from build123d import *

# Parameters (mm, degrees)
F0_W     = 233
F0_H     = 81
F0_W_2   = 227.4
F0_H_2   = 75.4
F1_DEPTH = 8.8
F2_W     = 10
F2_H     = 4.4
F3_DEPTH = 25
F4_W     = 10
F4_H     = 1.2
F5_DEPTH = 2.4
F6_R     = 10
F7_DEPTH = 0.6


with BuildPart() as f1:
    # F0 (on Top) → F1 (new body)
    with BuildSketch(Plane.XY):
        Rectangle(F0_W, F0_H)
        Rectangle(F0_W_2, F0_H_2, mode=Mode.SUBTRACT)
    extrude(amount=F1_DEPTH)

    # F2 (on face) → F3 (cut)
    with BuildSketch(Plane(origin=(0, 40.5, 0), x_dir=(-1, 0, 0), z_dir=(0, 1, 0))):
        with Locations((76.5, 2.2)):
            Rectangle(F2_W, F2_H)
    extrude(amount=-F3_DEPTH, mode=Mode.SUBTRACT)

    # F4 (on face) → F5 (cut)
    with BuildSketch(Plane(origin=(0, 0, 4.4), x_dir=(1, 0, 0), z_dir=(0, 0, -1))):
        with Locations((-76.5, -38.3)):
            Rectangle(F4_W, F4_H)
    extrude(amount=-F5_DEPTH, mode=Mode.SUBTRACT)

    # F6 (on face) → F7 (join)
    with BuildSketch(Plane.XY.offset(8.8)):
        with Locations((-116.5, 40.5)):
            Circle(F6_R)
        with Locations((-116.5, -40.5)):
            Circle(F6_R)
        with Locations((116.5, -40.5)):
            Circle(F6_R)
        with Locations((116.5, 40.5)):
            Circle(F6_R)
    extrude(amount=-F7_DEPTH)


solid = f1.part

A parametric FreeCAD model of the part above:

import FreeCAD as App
import Part
import Sketcher

V = App.Vector


def add_polygon(sketch, points):
    """Adds a closed chain of lines whose ends are joined by coincident constraints."""
    first, n = sketch.GeometryCount, len(points)
    for a, b in zip(points, points[1:] + points[:1]):
        sketch.addGeometry(Part.LineSegment(App.Vector(*a, 0), App.Vector(*b, 0)), False)
    for i in range(n):
        sketch.addConstraint(Sketcher.Constraint("Coincident", first + i, 2, first + (i + 1) % n, 1))

doc = App.newDocument("Part")
body = doc.addObject("PartDesign::Body", "Body")

# Sketch on XY plane
sketch1 = doc.addObject("Sketcher::SketchObject", "Sketch")
body.addObject(sketch1)
sketch1.AttachmentSupport = (doc.XY_Plane, [""])
sketch1.MapMode = "FlatFace"
add_polygon(sketch1, [(-116.5, 40.5), (-116.5, -40.5), (116.5, -40.5), (116.5, 40.5)])  # lines 0-3
add_polygon(sketch1, [(113.7, -37.7), (-113.7, -37.7), (-113.7, 37.7), (113.7, 37.7)])  # lines 4-7
sketch1.addConstraint(Sketcher.Constraint("Vertical", 0))
sketch1.addConstraint(Sketcher.Constraint("Horizontal", 1))
sketch1.addConstraint(Sketcher.Constraint("Vertical", 2))
sketch1.addConstraint(Sketcher.Constraint("Horizontal", 3))
sketch1.addConstraint(Sketcher.Constraint("Horizontal", 4))
sketch1.addConstraint(Sketcher.Constraint("Vertical", 5))
sketch1.addConstraint(Sketcher.Constraint("Horizontal", 6))
sketch1.addConstraint(Sketcher.Constraint("Vertical", 7))
sketch1.addConstraint(Sketcher.Constraint("Symmetric", 0, 2, 2, 2, -1, 1))
sketch1.addConstraint(Sketcher.Constraint("Symmetric", 4, 2, 6, 2, -1, 1))
sketch1.addConstraint(Sketcher.Constraint("DistanceX", 1, 1, 1, 2, 233.0))
sketch1.addConstraint(Sketcher.Constraint("DistanceY", 0, 2, 0, 1, 81.0))
sketch1.addConstraint(Sketcher.Constraint("DistanceX", 4, 2, 4, 1, 227.4))
sketch1.addConstraint(Sketcher.Constraint("DistanceY", 5, 1, 5, 2, 75.4))
pad1 = doc.addObject("PartDesign::Pad", "Pad")
body.addObject(pad1)
pad1.Profile = sketch1
pad1.Length = 8.8

# Sketch on XZ plane
sketch2 = doc.addObject("Sketcher::SketchObject", "Sketch001")
body.addObject(sketch2)
sketch2.AttachmentSupport = (doc.XZ_Plane, [""])
sketch2.MapMode = "FlatFace"
sketch2.AttachmentOffset = App.Placement(V(0, 0, -40.5), App.Rotation())
add_polygon(sketch2, [(-71.5, 4.4), (-71.5, 0), (-81.5, 0), (-81.5, 4.4)])  # lines 0-3
sketch2.addConstraint(Sketcher.Constraint("Vertical", 0))
sketch2.addConstraint(Sketcher.Constraint("Horizontal", 1))
sketch2.addConstraint(Sketcher.Constraint("Vertical", 2))
sketch2.addConstraint(Sketcher.Constraint("Horizontal", 3))
sketch2.addConstraint(Sketcher.Constraint("PointOnObject", 0, 2, -1))
sketch2.addConstraint(Sketcher.Constraint("DistanceX", 1, 2, 1, 1, 10.0))
sketch2.addConstraint(Sketcher.Constraint("DistanceY", 0, 2, 0, 1, 4.4))
sketch2.addConstraint(Sketcher.Constraint("DistanceX", 0, 2, -1, 1, 71.5))
pocket1 = doc.addObject("PartDesign::Pocket", "Pocket")
body.addObject(pocket1)
pocket1.Profile = sketch2
pocket1.Length = 25
pocket1.Reversed = True

# Sketch on XY plane
sketch3 = doc.addObject("Sketcher::SketchObject", "Sketch002")
body.addObject(sketch3)
sketch3.AttachmentSupport = (doc.XY_Plane, [""])
sketch3.MapMode = "FlatFace"
sketch3.AttachmentOffset = App.Placement(V(0, 0, 4.4), App.Rotation())
add_polygon(sketch3, [(-81.5, 37.7), (-81.5, 38.9), (-71.5, 38.9), (-71.5, 37.7)])  # lines 0-3
sketch3.addConstraint(Sketcher.Constraint("Vertical", 0))
sketch3.addConstraint(Sketcher.Constraint("Horizontal", 1))
sketch3.addConstraint(Sketcher.Constraint("Vertical", 2))
sketch3.addConstraint(Sketcher.Constraint("Horizontal", 3))
sketch3.addConstraint(Sketcher.Constraint("DistanceX", 1, 1, 1, 2, 10.0))
sketch3.addConstraint(Sketcher.Constraint("DistanceY", 0, 1, 0, 2, 1.2))
sketch3.addConstraint(Sketcher.Constraint("DistanceX", 0, 2, -1, 1, 81.5))
sketch3.addConstraint(Sketcher.Constraint("DistanceY", -1, 1, 0, 2, 38.9))
pocket2 = doc.addObject("PartDesign::Pocket", "Pocket001")
body.addObject(pocket2)
pocket2.Profile = sketch3
pocket2.Length = 2.4
pocket2.Reversed = True

# Sketch on XY plane
sketch4 = doc.addObject("Sketcher::SketchObject", "Sketch003")
body.addObject(sketch4)
sketch4.AttachmentSupport = (doc.XY_Plane, [""])
sketch4.MapMode = "FlatFace"
sketch4.AttachmentOffset = App.Placement(V(0, 0, 8.8), App.Rotation())
sketch4.addGeometry(Part.Circle(V(-116.5, 40.5, 0), V(0, 0, 1), 10), False)
sketch4.addGeometry(Part.Circle(V(-116.5, -40.5, 0), V(0, 0, 1), 10), False)
sketch4.addGeometry(Part.Circle(V(116.5, -40.5, 0), V(0, 0, 1), 10), False)
sketch4.addGeometry(Part.Circle(V(116.5, 40.5, 0), V(0, 0, 1), 10), False)
sketch4.addConstraint(Sketcher.Constraint("Equal", 0, 1))
sketch4.addConstraint(Sketcher.Constraint("Equal", 1, 2))
sketch4.addConstraint(Sketcher.Constraint("Equal", 2, 3))
sketch4.addConstraint(Sketcher.Constraint("Symmetric", 0, 3, 2, 3, -1, 1))
sketch4.addConstraint(Sketcher.Constraint("Symmetric", 1, 3, 3, 3, -1, 1))
sketch4.addConstraint(Sketcher.Constraint("Symmetric", 1, 3, 2, 3, -2))
sketch4.addConstraint(Sketcher.Constraint("Diameter", 0, 20.0))
sketch4.addConstraint(Sketcher.Constraint("DistanceY", 1, 3, 0, 3, 81.0))
sketch4.addConstraint(Sketcher.Constraint("DistanceX", 1, 3, 2, 3, 233.0))
pad2 = doc.addObject("PartDesign::Pad", "Pad001")
body.addObject(pad2)
pad2.Profile = sketch4
pad2.Length = 0.6
pad2.Reversed = True

doc.recompute()
